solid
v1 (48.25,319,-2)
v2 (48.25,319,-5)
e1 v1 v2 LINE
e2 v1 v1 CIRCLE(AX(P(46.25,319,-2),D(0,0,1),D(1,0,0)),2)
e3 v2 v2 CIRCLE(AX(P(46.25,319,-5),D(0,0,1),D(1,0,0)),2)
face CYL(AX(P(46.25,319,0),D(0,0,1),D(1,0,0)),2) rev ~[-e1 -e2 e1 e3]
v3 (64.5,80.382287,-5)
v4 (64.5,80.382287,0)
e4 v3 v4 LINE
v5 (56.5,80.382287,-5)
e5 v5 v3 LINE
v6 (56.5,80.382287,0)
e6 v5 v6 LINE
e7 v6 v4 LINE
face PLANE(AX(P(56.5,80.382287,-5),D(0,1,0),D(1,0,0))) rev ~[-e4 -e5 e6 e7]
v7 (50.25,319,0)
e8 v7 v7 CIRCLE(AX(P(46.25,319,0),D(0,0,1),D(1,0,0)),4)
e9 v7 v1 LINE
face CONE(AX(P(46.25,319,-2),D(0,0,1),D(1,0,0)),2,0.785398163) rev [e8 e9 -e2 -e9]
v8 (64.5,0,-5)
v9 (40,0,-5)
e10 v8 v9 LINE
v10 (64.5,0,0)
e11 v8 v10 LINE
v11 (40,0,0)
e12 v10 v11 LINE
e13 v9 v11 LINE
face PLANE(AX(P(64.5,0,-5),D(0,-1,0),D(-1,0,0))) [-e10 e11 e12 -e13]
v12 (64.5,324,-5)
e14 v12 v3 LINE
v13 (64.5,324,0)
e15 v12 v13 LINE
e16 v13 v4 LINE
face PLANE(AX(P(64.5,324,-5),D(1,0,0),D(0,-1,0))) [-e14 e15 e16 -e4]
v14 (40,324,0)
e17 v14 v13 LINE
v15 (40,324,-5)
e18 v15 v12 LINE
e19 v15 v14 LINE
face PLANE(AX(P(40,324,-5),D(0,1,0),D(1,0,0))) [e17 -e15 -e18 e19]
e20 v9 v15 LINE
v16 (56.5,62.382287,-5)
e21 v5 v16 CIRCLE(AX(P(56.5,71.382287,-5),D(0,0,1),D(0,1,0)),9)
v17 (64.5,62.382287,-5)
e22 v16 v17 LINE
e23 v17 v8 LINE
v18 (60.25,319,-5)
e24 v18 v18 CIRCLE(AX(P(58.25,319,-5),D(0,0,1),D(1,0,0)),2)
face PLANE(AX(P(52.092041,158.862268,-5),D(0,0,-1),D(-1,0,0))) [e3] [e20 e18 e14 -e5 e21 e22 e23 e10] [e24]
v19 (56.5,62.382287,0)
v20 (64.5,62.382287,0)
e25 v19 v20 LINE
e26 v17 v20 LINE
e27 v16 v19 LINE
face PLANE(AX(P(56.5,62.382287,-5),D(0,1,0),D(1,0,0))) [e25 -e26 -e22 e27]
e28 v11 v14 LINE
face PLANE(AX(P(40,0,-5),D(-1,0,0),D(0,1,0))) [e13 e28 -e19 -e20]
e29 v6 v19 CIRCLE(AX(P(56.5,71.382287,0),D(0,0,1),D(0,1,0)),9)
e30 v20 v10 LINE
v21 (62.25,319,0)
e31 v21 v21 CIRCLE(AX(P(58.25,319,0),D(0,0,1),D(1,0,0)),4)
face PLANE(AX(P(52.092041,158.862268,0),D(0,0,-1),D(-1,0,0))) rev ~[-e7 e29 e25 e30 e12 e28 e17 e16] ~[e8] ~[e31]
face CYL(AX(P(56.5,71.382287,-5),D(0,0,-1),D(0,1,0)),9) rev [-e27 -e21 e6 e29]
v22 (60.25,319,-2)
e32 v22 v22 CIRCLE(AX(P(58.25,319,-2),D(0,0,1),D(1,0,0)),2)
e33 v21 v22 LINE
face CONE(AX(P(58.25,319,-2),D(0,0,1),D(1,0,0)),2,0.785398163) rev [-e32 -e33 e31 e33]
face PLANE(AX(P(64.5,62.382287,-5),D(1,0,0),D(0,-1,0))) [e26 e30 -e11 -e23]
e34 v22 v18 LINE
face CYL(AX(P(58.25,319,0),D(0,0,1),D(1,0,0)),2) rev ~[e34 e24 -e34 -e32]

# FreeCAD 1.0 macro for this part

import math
import FreeCAD as App
import Part
import Sketcher
from FreeCAD import Vector


def edges_at(feature, points):
    """Names of the edges that pass closest to the given points."""
    edges = feature.Shape.Edges
    near = lambda p: min(range(len(edges)), key=lambda i: edges[i].distToShape(Part.Vertex(*p))[0])
    return sorted({f"Edge{near(p) + 1}" for p in points})

doc = App.newDocument("Part")
body = doc.addObject("PartDesign::Body", "Body")

sketch1 = body.newObject("Sketcher::SketchObject", "Sketch")
sketch1.AttachmentSupport = (doc.getObject("XY_Plane"), [""])
sketch1.MapMode = "FlatFace"
sketch1.addGeometry(Part.LineSegment(Vector(-81, -108, 0), Vector(-81, -45, 0)), False)
sketch1.addGeometry(Part.LineSegment(Vector(-81, -45, 0), Vector(-89, -45, 0)), False)
sketch1.addGeometry(Part.ArcOfCircle(Part.Circle(Vector(-89, -36, 0), Vector(0, 0, 1), 9), math.radians(90), math.radians(270)), False)
sketch1.addGeometry(Part.LineSegment(Vector(-89, -27, 0), Vector(-81, -27, 0)), False)
sketch1.addGeometry(Part.LineSegment(Vector(-81, -27, 0), Vector(-81, 216, 0)), False)
sketch1.addGeometry(Part.LineSegment(Vector(-81, 216, 0), Vector(-106, 216, 0)), False)
sketch1.addGeometry(Part.LineSegment(Vector(-106, 216, 0), Vector(-106, -108, 0)), False)
sketch1.addGeometry(Part.LineSegment(Vector(-106, -108, 0), Vector(-81, -108, 0)), False)
sketch1.addConstraint(Sketcher.Constraint("Coincident", 0, 2, 1, 1))
sketch1.addConstraint(Sketcher.Constraint("Tangent", 1, 2, 2, 2))
sketch1.addConstraint(Sketcher.Constraint("Tangent", 2, 1, 3, 1))
sketch1.addConstraint(Sketcher.Constraint("Coincident", 3, 2, 4, 1))
sketch1.addConstraint(Sketcher.Constraint("Coincident", 4, 2, 5, 1))
sketch1.addConstraint(Sketcher.Constraint("Coincident", 5, 2, 6, 1))
sketch1.addConstraint(Sketcher.Constraint("Coincident", 6, 2, 7, 1))
sketch1.addConstraint(Sketcher.Constraint("Coincident", 7, 2, 0, 1))
sketch1.addConstraint(Sketcher.Constraint("Vertical", 0))
sketch1.addConstraint(Sketcher.Constraint("Horizontal", 1))
sketch1.addConstraint(Sketcher.Constraint("Horizontal", 3))
sketch1.addConstraint(Sketcher.Constraint("Vertical", 4))
sketch1.addConstraint(Sketcher.Constraint("Horizontal", 5))
sketch1.addConstraint(Sketcher.Constraint("Vertical", 6))
sketch1.addConstraint(Sketcher.Constraint("Horizontal", 7))
sketch1.addConstraint(Sketcher.Constraint("Vertical", 0, 2, 3, 2))
sketch1.addConstraint(Sketcher.Constraint("Radius", 2, 9.0))
sketch1.addConstraint(Sketcher.Constraint("DistanceX", 1, 2, 1, 1, 8.0))
sketch1.addConstraint(Sketcher.Constraint("DistanceY", 6, 2, 6, 1, 324.0))
sketch1.addConstraint(Sketcher.Constraint("DistanceX", 5, 2, 5, 1, 24.5))
sketch1.addConstraint(Sketcher.Constraint("DistanceY", -1, 1, 4, 2, 216.2))
sketch1.addConstraint(Sketcher.Constraint("DistanceY", 0, 1, 0, 2, 62.382287))
sketch1.addConstraint(Sketcher.Constraint("DistanceX", 2, 3, -1, 1, 89.323184))
pad1 = body.newObject("PartDesign::Pad", "Pad")
pad1.Profile = sketch1
pad1.Length = 5

sketch2 = body.newObject("Sketcher::SketchObject", "Sketch001")
sketch2.AttachmentSupport = (doc.getObject("XY_Plane"), [""])
sketch2.MapMode = "FlatFace"
sketch2.AttachmentOffset = App.Placement(Vector(0, 0, 5), App.Rotation())
sketch2.addGeometry(Part.Circle(Vector(-99.6, 211.2, 0), Vector(0, 0, 1), 2), False)
sketch2.addGeometry(Part.Circle(Vector(-87.6, 211.2, 0), Vector(0, 0, 1), 2), False)
sketch2.addConstraint(Sketcher.Constraint("Equal", 0, 1))
sketch2.addConstraint(Sketcher.Constraint("Horizontal", 0, 3, 1, 3))
sketch2.addConstraint(Sketcher.Constraint("Diameter", 0, 4.0))
sketch2.addConstraint(Sketcher.Constraint("DistanceX", 0, 3, 1, 3, 12.0))
sketch2.addConstraint(Sketcher.Constraint("DistanceY", -1, 1, 0, 3, 211.2))
sketch2.addConstraint(Sketcher.Constraint("DistanceX", 0, 3, -1, 1, 99.573184))
pocket1 = body.newObject("PartDesign::Pocket", "Pocket")
pocket1.Profile = sketch2
pocket1.Type = "ThroughAll"
doc.recompute()

chamfer = body.newObject("PartDesign::Chamfer", "Chamfer")
chamfer.Base = (pocket1, edges_at(pocket1, [(-89.573, 211.2, 5), (-101.573, 211.2, 5)]))
chamfer.Size = 2
body2 = doc.addObject("PartDesign::Body", "Body001")
doc.recompute()

body.Placement = App.Placement(Vector(-50, 0, 15.5), App.Rotation(Vector(0, 0, 1), 0))
boolean = body2.newObject("PartDesign::Boolean", "Boolean")
boolean.Type = "Fuse"
boolean.addObjects([body])
body3 = doc.addObject("PartDesign::Body", "Body002")
doc.recompute()

body2.Placement = App.Placement(Vector(195.823184, 107.8, -20.5), App.Rotation(Vector(0, 0, 1), 0))
boolean2 = body3.newObject("PartDesign::Boolean", "Boolean001")
boolean2.Type = "Fuse"
boolean2.addObjects([body2])

doc.recompute()
